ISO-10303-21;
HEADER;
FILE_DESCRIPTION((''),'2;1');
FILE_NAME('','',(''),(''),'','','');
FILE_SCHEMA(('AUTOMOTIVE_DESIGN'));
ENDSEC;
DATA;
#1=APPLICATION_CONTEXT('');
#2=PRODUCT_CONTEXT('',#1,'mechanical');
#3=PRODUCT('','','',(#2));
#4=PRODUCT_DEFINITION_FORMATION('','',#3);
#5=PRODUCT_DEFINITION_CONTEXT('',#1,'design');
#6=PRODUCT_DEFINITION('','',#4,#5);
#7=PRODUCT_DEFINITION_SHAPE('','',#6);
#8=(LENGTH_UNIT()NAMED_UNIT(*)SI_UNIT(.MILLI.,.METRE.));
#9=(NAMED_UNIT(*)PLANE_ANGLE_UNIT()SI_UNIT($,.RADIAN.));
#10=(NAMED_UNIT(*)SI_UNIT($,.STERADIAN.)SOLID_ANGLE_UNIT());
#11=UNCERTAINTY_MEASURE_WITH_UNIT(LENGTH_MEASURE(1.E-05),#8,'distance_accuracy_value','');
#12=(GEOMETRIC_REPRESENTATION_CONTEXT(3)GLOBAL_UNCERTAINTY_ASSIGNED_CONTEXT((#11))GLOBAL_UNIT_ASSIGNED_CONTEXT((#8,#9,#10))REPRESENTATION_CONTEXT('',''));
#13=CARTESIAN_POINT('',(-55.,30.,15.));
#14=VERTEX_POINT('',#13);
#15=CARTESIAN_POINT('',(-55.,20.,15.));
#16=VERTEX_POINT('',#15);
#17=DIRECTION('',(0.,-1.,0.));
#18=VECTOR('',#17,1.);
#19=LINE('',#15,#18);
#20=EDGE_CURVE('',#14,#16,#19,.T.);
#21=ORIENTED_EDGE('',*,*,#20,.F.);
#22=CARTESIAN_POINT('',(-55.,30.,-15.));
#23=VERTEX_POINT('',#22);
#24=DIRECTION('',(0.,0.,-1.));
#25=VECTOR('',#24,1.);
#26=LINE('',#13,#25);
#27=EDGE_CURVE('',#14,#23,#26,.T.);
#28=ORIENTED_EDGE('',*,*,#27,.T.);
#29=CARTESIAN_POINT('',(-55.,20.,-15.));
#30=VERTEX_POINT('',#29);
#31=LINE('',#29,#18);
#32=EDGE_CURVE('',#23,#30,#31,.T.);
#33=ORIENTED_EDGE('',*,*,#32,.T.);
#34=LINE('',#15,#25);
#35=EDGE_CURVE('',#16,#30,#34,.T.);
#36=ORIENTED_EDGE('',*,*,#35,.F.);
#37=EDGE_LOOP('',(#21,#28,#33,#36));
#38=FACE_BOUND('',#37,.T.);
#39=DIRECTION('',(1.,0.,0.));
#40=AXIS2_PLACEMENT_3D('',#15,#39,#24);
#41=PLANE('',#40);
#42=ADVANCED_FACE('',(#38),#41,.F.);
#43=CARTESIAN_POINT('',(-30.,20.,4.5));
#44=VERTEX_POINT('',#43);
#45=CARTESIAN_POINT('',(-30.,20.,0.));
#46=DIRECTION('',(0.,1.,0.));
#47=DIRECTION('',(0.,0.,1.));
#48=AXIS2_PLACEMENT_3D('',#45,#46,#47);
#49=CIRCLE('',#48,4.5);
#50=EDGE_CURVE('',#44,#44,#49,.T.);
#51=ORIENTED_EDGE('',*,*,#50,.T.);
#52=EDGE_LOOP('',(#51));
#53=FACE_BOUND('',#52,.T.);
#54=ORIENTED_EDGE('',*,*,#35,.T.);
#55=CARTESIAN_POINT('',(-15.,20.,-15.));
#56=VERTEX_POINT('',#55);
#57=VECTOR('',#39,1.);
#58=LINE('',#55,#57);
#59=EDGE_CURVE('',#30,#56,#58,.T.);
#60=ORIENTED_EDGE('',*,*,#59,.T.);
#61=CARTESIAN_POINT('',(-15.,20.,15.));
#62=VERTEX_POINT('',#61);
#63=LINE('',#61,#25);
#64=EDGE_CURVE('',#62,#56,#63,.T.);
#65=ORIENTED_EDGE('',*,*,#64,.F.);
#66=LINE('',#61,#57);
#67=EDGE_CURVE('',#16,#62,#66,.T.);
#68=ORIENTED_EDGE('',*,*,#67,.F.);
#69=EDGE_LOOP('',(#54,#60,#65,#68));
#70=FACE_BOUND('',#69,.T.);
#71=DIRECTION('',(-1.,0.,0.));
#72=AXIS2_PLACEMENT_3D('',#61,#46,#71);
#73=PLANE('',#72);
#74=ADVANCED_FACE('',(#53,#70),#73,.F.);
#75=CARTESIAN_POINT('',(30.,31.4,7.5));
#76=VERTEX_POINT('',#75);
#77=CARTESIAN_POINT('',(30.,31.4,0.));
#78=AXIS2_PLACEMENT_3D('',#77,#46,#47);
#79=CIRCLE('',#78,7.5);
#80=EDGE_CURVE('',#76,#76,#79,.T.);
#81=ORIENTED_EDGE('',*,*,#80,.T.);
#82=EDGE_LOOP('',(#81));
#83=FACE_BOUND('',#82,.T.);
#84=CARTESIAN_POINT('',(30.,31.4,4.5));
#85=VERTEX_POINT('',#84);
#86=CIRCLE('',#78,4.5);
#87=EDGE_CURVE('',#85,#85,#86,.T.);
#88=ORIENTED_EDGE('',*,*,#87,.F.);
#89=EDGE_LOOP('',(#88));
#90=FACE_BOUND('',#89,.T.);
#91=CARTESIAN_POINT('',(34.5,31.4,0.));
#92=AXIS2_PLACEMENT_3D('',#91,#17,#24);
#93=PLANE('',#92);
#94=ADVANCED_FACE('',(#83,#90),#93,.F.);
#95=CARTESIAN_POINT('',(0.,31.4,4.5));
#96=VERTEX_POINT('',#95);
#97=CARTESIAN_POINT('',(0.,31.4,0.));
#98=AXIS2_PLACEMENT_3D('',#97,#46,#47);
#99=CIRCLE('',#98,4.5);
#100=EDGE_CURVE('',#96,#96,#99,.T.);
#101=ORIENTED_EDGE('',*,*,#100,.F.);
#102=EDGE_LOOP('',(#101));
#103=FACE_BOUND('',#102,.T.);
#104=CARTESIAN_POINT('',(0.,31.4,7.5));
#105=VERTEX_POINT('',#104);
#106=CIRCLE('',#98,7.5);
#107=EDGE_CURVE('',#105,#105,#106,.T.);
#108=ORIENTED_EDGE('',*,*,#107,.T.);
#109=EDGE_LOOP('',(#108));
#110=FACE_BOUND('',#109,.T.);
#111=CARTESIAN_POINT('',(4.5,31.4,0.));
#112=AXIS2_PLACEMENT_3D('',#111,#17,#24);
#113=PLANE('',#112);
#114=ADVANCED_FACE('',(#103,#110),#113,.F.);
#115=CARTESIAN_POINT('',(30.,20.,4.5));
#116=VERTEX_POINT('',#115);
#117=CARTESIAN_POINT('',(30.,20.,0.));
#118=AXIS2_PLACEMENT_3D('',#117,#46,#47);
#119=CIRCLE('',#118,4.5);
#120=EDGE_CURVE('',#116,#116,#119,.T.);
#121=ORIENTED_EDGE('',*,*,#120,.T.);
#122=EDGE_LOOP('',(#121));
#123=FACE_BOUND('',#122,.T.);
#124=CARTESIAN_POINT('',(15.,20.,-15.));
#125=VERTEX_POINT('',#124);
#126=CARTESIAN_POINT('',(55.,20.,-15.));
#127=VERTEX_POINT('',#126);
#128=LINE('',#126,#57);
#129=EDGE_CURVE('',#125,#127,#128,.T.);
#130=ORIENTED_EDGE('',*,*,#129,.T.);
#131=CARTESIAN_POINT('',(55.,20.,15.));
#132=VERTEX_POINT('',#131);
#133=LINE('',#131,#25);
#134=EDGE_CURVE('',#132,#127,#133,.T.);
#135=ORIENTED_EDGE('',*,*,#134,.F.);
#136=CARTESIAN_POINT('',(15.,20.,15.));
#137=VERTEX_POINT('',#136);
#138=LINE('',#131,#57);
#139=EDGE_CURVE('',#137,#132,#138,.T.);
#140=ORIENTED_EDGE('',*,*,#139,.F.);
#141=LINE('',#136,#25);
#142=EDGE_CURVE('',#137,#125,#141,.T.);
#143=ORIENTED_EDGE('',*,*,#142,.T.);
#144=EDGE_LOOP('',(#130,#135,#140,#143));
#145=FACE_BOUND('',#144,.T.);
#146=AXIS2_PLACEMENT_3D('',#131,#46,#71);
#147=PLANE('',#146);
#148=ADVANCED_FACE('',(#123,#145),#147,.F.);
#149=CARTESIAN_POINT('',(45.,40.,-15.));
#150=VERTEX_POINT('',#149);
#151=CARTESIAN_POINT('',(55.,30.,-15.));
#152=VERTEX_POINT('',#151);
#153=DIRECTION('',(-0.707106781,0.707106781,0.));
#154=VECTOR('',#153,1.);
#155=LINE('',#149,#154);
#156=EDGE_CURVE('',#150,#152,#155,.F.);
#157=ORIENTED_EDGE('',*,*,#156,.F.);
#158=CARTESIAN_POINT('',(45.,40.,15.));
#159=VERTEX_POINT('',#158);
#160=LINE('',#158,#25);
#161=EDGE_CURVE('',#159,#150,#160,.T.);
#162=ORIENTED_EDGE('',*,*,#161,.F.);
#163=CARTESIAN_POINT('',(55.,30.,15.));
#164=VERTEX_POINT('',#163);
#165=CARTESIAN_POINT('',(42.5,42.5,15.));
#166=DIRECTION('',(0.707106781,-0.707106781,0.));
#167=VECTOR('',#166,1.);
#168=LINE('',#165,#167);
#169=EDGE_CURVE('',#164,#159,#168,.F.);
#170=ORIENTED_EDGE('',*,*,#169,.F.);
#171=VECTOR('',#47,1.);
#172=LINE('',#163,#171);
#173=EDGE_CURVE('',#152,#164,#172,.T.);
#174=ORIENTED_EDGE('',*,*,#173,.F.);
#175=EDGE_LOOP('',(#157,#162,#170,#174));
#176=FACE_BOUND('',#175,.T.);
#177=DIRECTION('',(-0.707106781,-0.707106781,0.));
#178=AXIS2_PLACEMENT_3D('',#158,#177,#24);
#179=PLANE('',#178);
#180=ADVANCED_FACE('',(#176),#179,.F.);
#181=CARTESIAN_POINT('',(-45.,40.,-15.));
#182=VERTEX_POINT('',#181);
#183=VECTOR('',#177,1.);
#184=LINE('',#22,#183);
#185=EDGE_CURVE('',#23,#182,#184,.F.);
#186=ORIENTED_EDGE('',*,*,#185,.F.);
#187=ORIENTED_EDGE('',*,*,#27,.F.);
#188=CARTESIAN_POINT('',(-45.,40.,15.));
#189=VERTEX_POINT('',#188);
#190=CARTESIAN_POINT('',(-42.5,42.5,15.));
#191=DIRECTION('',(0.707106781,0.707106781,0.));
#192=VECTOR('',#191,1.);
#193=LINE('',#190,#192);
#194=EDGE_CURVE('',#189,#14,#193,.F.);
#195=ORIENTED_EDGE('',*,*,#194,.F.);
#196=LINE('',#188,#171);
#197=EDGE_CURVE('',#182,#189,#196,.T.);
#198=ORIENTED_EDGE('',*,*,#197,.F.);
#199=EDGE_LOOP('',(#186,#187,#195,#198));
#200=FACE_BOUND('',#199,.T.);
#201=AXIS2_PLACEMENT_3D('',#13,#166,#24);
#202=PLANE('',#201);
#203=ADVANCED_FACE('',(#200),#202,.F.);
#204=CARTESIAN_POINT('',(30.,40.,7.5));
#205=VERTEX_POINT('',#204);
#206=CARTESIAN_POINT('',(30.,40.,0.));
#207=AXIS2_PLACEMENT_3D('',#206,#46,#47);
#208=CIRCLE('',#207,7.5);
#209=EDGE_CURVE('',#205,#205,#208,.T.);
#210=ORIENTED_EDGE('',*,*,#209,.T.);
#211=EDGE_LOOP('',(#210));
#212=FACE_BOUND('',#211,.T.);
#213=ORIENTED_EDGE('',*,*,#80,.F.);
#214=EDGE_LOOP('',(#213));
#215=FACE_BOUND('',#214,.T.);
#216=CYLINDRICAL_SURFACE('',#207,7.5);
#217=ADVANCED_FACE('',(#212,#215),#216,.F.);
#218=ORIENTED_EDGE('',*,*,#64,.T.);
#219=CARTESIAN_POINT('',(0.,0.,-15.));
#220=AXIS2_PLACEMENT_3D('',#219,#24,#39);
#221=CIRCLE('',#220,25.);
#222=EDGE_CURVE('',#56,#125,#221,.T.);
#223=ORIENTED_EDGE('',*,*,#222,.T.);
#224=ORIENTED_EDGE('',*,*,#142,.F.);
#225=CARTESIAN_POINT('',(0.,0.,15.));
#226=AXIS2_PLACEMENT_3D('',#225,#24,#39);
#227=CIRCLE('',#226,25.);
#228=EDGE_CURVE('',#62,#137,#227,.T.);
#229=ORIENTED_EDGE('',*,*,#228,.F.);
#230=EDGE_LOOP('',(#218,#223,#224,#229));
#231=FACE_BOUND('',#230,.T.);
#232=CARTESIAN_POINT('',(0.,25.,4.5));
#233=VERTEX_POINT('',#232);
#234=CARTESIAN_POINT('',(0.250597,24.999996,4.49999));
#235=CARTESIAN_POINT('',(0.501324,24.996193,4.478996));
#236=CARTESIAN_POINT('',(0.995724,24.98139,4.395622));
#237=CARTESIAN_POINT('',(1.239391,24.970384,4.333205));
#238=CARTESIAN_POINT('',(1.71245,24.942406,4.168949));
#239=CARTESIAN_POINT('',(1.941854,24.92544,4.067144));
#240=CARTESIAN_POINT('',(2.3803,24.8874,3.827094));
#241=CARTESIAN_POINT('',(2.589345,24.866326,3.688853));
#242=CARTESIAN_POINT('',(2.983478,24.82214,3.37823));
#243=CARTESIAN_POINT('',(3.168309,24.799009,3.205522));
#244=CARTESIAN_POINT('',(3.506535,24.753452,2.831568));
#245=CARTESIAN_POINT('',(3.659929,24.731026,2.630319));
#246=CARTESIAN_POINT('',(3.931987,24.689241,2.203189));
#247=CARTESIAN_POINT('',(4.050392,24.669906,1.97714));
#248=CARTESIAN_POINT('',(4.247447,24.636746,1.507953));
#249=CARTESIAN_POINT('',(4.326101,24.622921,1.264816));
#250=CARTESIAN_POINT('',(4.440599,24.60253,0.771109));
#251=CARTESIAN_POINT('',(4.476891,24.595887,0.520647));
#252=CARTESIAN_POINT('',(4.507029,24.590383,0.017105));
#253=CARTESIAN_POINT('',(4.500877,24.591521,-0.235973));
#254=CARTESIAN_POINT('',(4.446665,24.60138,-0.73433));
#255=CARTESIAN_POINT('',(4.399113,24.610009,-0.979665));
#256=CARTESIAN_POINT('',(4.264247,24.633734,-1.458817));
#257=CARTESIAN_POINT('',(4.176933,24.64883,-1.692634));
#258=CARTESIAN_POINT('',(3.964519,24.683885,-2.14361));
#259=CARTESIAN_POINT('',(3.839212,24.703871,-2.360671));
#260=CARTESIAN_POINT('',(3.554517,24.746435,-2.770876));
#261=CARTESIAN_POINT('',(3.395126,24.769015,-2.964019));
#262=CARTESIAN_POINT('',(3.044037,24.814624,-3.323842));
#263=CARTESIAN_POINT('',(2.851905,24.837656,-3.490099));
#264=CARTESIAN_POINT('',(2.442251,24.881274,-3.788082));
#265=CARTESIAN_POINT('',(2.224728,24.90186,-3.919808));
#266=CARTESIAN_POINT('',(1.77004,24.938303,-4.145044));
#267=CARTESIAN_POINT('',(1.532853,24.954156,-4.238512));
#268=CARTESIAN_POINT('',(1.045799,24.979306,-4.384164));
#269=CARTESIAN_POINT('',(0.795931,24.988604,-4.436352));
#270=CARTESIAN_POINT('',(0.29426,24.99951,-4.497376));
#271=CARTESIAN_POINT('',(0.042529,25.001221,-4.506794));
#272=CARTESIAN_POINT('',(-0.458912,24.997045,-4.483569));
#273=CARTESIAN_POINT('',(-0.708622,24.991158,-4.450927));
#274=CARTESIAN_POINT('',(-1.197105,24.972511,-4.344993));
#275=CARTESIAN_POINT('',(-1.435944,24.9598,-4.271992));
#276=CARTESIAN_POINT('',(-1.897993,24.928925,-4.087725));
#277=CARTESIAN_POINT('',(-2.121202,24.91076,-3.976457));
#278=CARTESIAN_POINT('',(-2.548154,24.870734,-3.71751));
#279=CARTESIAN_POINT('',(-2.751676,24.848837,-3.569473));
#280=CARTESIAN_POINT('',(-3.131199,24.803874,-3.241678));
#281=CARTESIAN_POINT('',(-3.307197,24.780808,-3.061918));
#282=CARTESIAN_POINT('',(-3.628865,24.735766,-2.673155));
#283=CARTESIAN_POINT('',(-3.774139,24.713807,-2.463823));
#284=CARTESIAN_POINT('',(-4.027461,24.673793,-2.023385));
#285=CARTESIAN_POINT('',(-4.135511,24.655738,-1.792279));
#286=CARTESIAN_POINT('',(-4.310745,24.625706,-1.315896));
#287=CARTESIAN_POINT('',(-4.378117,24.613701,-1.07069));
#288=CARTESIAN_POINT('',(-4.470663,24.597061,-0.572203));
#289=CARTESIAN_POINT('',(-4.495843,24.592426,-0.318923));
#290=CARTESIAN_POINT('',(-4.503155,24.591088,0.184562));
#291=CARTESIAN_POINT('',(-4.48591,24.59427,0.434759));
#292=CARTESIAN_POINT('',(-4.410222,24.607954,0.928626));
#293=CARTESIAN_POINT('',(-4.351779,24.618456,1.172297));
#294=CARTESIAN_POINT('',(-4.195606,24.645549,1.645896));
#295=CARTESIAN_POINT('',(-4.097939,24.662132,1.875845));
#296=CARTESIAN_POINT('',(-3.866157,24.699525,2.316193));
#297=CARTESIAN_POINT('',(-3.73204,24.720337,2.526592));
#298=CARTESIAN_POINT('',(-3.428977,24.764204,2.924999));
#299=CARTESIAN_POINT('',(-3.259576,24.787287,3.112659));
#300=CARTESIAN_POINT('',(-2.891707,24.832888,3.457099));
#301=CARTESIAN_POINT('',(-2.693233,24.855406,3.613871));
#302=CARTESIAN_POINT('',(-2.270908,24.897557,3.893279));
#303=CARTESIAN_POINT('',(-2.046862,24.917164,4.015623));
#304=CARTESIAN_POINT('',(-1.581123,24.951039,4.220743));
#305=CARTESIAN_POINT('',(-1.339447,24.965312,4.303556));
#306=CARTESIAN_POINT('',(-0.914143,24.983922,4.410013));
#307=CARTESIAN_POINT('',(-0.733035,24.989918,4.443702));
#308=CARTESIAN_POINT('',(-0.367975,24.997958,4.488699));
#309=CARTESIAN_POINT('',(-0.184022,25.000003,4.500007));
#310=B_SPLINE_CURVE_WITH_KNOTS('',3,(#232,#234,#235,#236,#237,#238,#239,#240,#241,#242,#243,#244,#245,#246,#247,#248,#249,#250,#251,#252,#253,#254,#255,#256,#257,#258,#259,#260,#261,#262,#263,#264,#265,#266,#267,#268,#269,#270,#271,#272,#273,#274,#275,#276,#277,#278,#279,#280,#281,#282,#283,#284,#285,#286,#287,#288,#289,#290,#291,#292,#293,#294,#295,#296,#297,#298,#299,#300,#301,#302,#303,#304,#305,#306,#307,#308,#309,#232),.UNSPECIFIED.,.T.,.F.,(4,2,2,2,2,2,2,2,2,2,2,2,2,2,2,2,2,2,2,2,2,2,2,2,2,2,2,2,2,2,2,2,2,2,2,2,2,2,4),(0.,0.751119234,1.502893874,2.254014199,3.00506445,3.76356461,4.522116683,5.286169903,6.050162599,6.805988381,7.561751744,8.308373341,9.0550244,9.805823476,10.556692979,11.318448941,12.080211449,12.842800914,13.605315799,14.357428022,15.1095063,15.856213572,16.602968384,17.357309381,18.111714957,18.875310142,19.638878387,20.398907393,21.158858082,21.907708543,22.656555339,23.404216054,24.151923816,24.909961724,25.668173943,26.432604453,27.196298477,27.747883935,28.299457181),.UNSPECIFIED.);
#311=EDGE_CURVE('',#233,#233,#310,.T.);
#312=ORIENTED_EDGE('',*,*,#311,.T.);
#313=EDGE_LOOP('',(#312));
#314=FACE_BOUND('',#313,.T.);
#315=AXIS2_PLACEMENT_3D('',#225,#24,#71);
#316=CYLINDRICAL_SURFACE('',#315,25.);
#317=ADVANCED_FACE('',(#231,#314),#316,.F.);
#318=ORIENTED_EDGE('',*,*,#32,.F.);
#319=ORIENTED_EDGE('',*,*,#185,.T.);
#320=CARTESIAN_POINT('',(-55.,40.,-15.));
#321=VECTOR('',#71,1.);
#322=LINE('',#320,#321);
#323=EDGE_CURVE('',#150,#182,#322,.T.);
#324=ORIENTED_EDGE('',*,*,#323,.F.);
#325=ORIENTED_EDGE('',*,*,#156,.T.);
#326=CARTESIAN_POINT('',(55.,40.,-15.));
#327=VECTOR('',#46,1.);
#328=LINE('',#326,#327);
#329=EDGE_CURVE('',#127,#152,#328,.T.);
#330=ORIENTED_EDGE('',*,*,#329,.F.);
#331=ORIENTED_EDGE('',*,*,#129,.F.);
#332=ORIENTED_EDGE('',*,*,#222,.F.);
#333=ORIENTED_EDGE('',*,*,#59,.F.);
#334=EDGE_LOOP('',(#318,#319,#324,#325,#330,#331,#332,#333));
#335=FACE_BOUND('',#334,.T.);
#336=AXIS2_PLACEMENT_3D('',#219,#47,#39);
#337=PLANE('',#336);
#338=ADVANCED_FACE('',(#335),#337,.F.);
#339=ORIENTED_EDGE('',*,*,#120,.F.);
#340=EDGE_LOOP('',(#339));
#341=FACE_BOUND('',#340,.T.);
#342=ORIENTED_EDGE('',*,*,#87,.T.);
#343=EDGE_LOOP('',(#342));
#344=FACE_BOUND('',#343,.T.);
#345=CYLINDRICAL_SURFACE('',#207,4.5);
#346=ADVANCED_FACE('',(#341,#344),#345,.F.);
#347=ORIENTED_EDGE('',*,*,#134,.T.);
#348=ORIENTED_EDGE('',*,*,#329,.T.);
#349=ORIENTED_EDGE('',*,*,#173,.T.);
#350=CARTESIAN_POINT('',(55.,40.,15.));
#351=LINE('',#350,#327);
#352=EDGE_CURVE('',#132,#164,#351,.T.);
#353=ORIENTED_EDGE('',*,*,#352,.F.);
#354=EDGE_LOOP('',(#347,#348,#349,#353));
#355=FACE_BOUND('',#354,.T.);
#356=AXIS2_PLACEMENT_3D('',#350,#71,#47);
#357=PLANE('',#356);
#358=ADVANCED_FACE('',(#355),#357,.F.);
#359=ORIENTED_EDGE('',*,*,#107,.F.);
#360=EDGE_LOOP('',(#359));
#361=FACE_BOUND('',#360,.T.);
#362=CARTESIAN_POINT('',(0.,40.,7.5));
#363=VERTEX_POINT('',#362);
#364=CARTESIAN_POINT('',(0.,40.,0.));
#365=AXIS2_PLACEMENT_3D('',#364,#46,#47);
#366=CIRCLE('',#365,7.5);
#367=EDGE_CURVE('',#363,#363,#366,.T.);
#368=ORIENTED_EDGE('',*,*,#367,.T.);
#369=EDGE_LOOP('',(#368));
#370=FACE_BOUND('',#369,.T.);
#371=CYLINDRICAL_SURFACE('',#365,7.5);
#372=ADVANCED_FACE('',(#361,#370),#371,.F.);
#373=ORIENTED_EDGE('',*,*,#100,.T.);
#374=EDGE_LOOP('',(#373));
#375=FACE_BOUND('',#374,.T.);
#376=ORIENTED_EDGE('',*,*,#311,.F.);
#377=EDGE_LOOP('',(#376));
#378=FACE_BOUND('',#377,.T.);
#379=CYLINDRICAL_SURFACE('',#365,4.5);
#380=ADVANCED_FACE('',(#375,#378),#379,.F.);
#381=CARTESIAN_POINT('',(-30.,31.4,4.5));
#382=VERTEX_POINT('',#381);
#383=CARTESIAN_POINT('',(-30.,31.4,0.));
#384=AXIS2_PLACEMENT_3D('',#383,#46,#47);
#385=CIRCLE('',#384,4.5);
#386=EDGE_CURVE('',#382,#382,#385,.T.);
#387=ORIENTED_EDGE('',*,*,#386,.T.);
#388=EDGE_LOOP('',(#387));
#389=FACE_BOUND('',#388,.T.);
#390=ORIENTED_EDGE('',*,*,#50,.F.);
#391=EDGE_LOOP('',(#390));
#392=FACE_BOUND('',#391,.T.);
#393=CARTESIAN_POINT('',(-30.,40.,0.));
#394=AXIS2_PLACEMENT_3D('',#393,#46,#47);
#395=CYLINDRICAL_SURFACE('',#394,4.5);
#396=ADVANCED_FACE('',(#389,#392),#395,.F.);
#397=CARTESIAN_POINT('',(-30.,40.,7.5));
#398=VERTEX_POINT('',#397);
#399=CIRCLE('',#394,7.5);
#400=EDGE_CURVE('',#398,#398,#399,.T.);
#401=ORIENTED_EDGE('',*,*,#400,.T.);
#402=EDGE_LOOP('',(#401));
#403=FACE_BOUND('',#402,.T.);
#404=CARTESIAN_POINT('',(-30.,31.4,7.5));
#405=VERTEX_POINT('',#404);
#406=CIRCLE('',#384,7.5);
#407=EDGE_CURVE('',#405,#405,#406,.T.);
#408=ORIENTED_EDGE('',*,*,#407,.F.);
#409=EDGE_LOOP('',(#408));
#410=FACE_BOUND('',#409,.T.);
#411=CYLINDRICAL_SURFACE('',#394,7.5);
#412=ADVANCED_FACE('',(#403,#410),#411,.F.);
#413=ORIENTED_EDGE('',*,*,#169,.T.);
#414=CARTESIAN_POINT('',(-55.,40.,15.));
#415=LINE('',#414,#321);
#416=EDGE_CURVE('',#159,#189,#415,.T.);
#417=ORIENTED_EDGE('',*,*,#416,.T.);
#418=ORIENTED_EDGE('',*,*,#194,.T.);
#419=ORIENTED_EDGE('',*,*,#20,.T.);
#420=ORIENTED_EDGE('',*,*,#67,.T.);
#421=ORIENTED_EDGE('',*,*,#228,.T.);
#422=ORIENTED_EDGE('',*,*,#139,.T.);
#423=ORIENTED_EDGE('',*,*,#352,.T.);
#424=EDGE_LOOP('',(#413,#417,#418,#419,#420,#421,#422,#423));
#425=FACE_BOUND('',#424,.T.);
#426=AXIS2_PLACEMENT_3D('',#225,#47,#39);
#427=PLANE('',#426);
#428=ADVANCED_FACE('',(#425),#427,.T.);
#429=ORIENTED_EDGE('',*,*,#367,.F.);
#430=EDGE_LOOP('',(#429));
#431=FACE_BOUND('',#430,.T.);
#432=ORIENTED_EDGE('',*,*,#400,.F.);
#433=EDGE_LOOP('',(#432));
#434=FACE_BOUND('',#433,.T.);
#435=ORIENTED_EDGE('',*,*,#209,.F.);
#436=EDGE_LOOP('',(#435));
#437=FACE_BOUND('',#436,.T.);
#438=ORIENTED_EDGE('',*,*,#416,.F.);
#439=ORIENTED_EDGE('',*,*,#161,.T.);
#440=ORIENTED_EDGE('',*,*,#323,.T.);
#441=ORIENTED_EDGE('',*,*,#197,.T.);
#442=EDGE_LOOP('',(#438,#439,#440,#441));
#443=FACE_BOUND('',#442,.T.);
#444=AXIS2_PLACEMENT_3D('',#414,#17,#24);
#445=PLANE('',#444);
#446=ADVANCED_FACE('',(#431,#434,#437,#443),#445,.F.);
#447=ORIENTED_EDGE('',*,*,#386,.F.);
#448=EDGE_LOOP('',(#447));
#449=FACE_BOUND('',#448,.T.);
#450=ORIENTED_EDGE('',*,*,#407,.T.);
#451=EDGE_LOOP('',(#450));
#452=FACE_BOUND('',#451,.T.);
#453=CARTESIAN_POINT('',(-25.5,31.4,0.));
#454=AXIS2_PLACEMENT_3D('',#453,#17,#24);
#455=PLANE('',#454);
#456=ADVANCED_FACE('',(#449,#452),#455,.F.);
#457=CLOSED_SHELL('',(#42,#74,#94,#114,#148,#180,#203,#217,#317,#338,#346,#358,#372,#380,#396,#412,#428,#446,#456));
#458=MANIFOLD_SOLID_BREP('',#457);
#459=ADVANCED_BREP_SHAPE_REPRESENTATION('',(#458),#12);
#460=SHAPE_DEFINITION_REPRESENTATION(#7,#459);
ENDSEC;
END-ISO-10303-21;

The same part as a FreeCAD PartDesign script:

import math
import FreeCAD as App
import Part
import Sketcher
from FreeCAD import Vector
Q = App.Units.Quantity


def edges_at(feature, points):
    """Names of the edges that pass closest to the given points."""
    edges = feature.Shape.Edges
    near = lambda p: min(range(len(edges)), key=lambda i: edges[i].distToShape(Part.Vertex(*p))[0])
    return sorted({f"Edge{near(p) + 1}" for p in points})

doc = App.newDocument("Part")
body = doc.addObject("PartDesign::Body", "Body")

# Sketch on XY plane
sketch1 = doc.addObject("Sketcher::SketchObject", "Sketch")
body.addObject(sketch1)
sketch1.AttachmentSupport = (doc.XY_Plane, [""])
sketch1.MapMode = "FlatFace"
sketch1.addGeometry([
    Part.LineSegment(Vector(-55, 20, 0), Vector(-15, 20, 0)),  # 0
    Part.ArcOfCircle(Part.Circle(Vector(0, 0, 0), Vector(0, 0, 1), 25), math.radians(53), math.radians(127)),  # 1
    Part.LineSegment(Vector(15, 20, 0), Vector(55, 20, 0)),  # 2
    Part.LineSegment(Vector(55, 20, 0), Vector(55, 40, 0)),  # 3
    Part.LineSegment(Vector(55, 40, 0), Vector(-55, 40, 0)),  # 4
    Part.LineSegment(Vector(-55, 40, 0), Vector(-55, 20, 0)),  # 5
], False)
sketch1.addConstraint([
    Sketcher.Constraint("Coincident", 0, 2, 1, 2),
    Sketcher.Constraint("Coincident", 1, 1, 2, 1),
    Sketcher.Constraint("Coincident", 2, 2, 3, 1),
    Sketcher.Constraint("Coincident", 3, 2, 4, 1),
    Sketcher.Constraint("Coincident", 4, 2, 5, 1),
    Sketcher.Constraint("Coincident", 5, 2, 0, 1),
    Sketcher.Constraint("Horizontal", 0),
    Sketcher.Constraint("Horizontal", 2),
    Sketcher.Constraint("Vertical", 3),
    Sketcher.Constraint("Horizontal", 4),
    Sketcher.Constraint("Vertical", 5),
    Sketcher.Constraint("Coincident", 1, 3, -1, 1),
    Sketcher.Constraint("Symmetric", 2, 2, 5, 2, -2),
    Sketcher.Constraint("Radius", 1, Q("25 mm")),
    Sketcher.Constraint("DistanceX", 0, 1, 0, 2, Q("40 mm")),
    Sketcher.Constraint("DistanceX", 4, 2, 4, 1, Q("110 mm")),
    Sketcher.Constraint("DistanceY", 3, 1, 3, 2, Q("20 mm")),
])
pad1 = doc.addObject("PartDesign::Pad", "Pad")
body.addObject(pad1)
pad1.Profile = sketch1
pad1.Length = 30
pad1.Midplane = True

# Sketch on XZ plane
sketch2 = doc.addObject("Sketcher::SketchObject", "Sketch001")
body.addObject(sketch2)
sketch2.AttachmentSupport = (doc.XZ_Plane, [""])
sketch2.MapMode = "FlatFace"
sketch2.AttachmentOffset = App.Placement(Vector(0, 0, -40), App.Rotation())
sketch2.addGeometry([
    Part.Circle(Vector(0, 0, 0), Vector(0, 0, 1), 4.5),
    Part.Circle(Vector(-30, 0, 0), Vector(0, 0, 1), 4.5),
    Part.Circle(Vector(30, 0, 0), Vector(0, 0, 1), 4.5),
], False)
sketch2.addConstraint([
    Sketcher.Constraint("Coincident", 0, 3, -1, 1),
    Sketcher.Constraint("Equal", 0, 1),
    Sketcher.Constraint("Equal", 1, 2),
    Sketcher.Constraint("Symmetric", 1, 3, 2, 3, -1, 1),
    Sketcher.Constraint("PointOnObject", 1, 3, -1),
    Sketcher.Constraint("Diameter", 0, Q("9 mm")),
    Sketcher.Constraint("DistanceX", 1, 3, -1, 1, Q("30 mm")),
])
doc.recompute()
hole = doc.addObject("PartDesign::Hole", "Hole")
body.addObject(hole)
hole.Profile = sketch2
hole.ThreadType = "None"
hole.Diameter = 9
hole.DepthType = "ThroughAll"
hole.HoleCutType = "Counterbore"
hole.HoleCutDiameter = 15
hole.HoleCutDepth = 8.6
hole.Reversed = True
doc.recompute()

chamfer = doc.addObject("PartDesign::Chamfer", "Chamfer")
body.addObject(chamfer)
chamfer.Base = (hole, edges_at(hole, [(-55, 40, 0), (55, 40, 0)]))
chamfer.Size = 10

doc.recompute()
